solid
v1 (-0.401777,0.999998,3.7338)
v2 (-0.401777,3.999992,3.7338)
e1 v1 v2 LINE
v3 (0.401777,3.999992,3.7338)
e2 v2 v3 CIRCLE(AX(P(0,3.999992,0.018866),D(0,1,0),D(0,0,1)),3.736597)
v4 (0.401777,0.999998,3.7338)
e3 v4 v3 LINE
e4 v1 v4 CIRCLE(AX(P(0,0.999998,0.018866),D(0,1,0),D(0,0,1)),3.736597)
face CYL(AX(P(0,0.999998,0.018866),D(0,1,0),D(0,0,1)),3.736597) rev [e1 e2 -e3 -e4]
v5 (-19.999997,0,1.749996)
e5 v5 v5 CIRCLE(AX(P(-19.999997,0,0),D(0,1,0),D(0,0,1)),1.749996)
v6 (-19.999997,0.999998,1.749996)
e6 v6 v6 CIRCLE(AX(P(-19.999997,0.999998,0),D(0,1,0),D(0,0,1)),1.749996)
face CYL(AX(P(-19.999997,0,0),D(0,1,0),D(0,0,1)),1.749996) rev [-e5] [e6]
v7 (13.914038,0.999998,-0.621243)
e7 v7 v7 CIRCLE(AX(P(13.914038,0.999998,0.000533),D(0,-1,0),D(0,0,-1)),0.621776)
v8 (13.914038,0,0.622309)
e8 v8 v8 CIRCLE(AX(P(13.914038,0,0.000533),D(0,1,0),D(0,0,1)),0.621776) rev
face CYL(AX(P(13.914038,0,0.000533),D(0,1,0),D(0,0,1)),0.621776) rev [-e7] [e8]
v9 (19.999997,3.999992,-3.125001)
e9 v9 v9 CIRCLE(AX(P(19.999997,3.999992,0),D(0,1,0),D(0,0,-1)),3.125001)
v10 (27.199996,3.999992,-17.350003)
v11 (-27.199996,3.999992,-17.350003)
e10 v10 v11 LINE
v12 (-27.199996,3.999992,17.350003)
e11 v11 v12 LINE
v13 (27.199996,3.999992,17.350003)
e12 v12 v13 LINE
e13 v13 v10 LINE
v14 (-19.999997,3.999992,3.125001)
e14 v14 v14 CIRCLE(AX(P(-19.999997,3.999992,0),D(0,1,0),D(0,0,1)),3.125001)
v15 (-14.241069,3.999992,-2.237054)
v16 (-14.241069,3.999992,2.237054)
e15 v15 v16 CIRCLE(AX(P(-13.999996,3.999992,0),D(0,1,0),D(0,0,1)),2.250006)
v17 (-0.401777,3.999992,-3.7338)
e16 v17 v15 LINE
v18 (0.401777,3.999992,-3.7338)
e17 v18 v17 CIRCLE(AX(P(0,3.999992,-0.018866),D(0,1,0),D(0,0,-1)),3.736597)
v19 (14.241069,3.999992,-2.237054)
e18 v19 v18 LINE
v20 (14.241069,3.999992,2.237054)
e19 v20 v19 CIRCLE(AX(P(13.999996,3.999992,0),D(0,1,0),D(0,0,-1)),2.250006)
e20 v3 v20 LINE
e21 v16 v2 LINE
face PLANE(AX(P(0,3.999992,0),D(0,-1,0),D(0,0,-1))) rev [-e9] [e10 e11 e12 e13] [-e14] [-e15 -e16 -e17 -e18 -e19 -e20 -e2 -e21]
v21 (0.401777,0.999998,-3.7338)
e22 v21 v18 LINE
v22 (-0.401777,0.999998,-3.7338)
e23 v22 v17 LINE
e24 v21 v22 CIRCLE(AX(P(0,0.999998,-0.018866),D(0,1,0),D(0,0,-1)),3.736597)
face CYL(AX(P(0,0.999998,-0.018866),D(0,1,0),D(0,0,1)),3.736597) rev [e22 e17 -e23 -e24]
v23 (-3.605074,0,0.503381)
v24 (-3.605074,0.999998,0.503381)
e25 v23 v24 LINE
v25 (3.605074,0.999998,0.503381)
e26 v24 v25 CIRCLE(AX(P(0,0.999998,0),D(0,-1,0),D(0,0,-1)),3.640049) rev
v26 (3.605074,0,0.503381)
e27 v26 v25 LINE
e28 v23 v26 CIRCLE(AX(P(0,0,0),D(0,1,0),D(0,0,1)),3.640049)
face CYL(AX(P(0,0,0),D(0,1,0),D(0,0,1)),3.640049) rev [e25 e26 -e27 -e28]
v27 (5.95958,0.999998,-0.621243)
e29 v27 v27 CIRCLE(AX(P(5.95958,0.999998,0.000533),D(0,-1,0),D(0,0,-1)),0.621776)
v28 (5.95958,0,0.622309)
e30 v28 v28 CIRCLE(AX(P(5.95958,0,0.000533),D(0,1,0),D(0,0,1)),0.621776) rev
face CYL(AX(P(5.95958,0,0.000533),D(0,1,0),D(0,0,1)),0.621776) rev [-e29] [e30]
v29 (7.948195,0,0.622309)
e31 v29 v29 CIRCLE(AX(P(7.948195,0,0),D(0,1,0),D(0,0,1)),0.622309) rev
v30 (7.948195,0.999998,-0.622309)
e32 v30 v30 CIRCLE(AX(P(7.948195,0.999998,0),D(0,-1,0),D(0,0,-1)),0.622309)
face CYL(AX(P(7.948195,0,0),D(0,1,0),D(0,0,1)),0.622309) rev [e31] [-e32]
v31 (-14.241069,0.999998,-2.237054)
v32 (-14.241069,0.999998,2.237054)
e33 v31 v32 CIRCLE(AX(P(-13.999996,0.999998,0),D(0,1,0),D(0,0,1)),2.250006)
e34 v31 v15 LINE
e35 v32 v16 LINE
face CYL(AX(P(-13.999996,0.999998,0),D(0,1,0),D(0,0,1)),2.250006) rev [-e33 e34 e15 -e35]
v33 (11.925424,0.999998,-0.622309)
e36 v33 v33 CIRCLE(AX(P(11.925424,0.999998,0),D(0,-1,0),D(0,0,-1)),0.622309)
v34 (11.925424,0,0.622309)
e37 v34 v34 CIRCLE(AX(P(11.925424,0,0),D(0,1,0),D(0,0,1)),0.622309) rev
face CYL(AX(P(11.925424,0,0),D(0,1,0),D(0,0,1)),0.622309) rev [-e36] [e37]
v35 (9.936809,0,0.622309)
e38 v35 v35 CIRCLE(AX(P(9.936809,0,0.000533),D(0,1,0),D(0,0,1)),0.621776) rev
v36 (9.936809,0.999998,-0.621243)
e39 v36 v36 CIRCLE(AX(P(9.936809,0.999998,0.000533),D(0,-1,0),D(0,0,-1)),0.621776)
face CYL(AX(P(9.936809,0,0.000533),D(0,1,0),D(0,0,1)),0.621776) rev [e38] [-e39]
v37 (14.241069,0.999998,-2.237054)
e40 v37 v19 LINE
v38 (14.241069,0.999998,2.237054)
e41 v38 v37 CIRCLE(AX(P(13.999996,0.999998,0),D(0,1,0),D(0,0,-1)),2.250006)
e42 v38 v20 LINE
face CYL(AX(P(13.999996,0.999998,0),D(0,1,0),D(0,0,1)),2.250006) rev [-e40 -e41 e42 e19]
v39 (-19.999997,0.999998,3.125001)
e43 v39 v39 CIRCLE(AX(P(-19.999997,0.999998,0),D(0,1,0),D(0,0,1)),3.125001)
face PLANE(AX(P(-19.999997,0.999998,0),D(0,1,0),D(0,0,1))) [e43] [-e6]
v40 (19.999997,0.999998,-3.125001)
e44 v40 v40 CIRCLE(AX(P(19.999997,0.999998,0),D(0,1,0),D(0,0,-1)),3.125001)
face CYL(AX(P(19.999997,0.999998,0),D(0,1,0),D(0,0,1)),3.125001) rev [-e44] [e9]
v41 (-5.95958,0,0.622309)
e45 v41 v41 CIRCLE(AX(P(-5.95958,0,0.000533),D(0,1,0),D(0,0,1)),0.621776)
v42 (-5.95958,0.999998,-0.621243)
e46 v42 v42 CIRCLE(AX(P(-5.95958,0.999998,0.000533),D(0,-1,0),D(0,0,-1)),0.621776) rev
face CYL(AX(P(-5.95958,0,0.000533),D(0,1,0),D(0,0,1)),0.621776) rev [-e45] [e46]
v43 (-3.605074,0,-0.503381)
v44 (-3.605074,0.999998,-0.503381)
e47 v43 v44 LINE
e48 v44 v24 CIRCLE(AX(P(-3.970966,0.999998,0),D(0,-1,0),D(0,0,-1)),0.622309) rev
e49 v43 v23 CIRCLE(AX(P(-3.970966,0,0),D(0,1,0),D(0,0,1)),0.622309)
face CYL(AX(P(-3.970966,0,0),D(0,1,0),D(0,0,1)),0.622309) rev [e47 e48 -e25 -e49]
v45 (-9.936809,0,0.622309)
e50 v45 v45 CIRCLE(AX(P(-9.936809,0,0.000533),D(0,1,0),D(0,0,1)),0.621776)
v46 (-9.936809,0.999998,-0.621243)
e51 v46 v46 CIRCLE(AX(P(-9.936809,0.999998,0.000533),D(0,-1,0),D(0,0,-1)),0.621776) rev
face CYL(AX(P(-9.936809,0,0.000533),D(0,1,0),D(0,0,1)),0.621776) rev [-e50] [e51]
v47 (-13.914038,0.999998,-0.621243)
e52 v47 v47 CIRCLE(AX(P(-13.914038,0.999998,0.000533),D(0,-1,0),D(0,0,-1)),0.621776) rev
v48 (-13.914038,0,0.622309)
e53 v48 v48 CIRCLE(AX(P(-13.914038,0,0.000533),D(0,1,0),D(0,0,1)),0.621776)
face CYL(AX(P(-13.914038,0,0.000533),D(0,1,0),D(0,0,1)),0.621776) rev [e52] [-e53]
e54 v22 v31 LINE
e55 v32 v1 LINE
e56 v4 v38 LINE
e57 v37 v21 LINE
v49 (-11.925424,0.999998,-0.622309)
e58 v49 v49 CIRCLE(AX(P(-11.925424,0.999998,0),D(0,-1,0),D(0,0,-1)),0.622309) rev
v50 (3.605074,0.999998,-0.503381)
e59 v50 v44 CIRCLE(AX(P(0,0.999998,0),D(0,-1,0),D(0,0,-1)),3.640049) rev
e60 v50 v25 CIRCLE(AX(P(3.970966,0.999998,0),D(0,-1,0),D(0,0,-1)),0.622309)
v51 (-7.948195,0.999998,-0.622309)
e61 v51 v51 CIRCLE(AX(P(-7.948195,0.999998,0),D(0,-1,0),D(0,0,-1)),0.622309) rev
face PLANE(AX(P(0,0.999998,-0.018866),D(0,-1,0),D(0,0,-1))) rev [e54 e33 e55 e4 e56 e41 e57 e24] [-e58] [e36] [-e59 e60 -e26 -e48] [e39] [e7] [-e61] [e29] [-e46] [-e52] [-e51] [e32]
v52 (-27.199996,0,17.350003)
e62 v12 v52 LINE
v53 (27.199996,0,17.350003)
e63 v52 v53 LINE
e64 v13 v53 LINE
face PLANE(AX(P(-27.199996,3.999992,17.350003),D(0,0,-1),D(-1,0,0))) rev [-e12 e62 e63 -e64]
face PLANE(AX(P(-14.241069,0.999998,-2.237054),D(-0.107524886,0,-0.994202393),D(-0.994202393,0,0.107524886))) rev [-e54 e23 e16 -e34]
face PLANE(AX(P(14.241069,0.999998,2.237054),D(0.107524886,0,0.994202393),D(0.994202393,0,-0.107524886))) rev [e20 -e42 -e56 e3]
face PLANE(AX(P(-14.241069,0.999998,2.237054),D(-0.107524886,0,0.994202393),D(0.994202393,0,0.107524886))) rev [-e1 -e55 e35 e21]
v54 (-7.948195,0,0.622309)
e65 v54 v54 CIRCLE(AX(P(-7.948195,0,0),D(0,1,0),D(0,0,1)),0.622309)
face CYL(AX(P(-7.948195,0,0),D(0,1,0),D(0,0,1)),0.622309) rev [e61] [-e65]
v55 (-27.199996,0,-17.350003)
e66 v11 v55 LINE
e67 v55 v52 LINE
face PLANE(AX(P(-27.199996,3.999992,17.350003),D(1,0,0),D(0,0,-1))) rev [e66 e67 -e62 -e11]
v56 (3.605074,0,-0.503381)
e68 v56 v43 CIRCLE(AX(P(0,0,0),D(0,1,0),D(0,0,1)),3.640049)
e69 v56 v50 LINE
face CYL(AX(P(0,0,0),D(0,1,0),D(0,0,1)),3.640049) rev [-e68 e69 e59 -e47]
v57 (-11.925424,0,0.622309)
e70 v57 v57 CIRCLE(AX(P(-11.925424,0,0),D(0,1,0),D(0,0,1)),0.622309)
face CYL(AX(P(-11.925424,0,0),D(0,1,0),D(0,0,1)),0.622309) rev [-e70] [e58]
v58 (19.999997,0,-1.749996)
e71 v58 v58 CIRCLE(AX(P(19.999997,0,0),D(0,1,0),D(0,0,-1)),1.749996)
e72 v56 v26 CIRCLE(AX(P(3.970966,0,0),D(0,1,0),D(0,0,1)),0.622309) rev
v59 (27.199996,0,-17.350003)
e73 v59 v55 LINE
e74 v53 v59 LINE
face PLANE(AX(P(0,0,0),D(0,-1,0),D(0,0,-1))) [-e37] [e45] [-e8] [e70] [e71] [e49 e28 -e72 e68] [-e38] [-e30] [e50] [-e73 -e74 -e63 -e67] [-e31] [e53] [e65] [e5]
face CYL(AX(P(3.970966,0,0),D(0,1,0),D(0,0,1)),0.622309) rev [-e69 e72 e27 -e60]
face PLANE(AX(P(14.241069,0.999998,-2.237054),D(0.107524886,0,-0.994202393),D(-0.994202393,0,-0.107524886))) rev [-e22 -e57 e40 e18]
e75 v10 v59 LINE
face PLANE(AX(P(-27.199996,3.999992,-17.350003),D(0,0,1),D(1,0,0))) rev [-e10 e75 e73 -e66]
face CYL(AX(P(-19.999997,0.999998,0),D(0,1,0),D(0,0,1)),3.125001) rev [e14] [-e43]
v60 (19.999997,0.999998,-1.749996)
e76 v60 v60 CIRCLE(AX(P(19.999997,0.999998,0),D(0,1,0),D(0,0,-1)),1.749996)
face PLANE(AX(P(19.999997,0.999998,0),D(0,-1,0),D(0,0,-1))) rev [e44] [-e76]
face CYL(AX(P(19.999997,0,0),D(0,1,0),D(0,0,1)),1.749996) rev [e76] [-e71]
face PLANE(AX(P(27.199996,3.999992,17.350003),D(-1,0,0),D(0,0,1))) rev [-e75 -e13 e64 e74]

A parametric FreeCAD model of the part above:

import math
import FreeCAD as App
import Part
import Sketcher
from FreeCAD import Vector


def add_polygon(sketch, points):
    """Adds a closed chain of lines whose ends are joined by coincident constraints."""
    first, n = sketch.GeometryCount, len(points)
    for a, b in zip(points, points[1:] + points[:1]):
        sketch.addGeometry(Part.LineSegment(App.Vector(*a, 0), App.Vector(*b, 0)), False)
    for i in range(n):
        sketch.addConstraint(Sketcher.Constraint("Coincident", first + i, 2, first + (i + 1) % n, 1))

doc = App.newDocument("Part")
body = doc.addObject("PartDesign::Body", "Body")

# Sketch on XZ plane
sketch1 = doc.addObject("Sketcher::SketchObject", "Sketch")
body.addObject(sketch1)
sketch1.AttachmentSupport = (doc.XZ_Plane, [""])
sketch1.MapMode = "FlatFace"
add_polygon(sketch1, [(-27.199996, -17.350003), (-27.199996, 17.350003), (27.199996, 17.350003), (27.199996, -17.350003)])  # lines 0-3
sketch1.addConstraint(Sketcher.Constraint("Vertical", 0))
sketch1.addConstraint(Sketcher.Constraint("Horizontal", 1))
sketch1.addConstraint(Sketcher.Constraint("Vertical", 2))
sketch1.addConstraint(Sketcher.Constraint("Horizontal", 3))
sketch1.addConstraint(Sketcher.Constraint("Symmetric", 0, 2, 2, 2, -1, 1))
sketch1.addConstraint(Sketcher.Constraint("DistanceX", 1, 1, 1, 2, 54.399993))
sketch1.addConstraint(Sketcher.Constraint("DistanceY", 0, 1, 0, 2, 34.700007))
pad1 = doc.addObject("PartDesign::Pad", "Pad")
body.addObject(pad1)
pad1.Profile = sketch1
pad1.Length = 3.999992
pad1.Reversed = True

# Sketch on XZ plane
sketch2 = doc.addObject("Sketcher::SketchObject", "Sketch001")
body.addObject(sketch2)
sketch2.AttachmentSupport = (doc.XZ_Plane, [""])
sketch2.MapMode = "FlatFace"
sketch2.AttachmentOffset = App.Placement(Vector(0, 0, -3.999992), App.Rotation())
sketch2.addGeometry(Part.Circle(Vector(-19.999997, 0, 0), Vector(0, 0, 1), 3.125001), False)
sketch2.addGeometry(Part.Circle(Vector(19.999997, 0, 0), Vector(0, 0, 1), 3.125001), False)
sketch2.addConstraint(Sketcher.Constraint("Equal", 0, 1))
sketch2.addConstraint(Sketcher.Constraint("Symmetric", 0, 3, 1, 3, -1, 1))
sketch2.addConstraint(Sketcher.Constraint("PointOnObject", 0, 3, -1))
sketch2.addConstraint(Sketcher.Constraint("Diameter", 0, 6.250002))
sketch2.addConstraint(Sketcher.Constraint("DistanceX", 0, 3, -1, 1, 19.999997))
pocket1 = doc.addObject("PartDesign::Pocket", "Pocket")
body.addObject(pocket1)
pocket1.Profile = sketch2
pocket1.Length = 2.999994
pocket1.Reversed = True

# Sketch on XZ plane
sketch3 = doc.addObject("Sketcher::SketchObject", "Sketch002")
body.addObject(sketch3)
sketch3.AttachmentSupport = (doc.XZ_Plane, [""])
sketch3.MapMode = "FlatFace"
sketch3.AttachmentOffset = App.Placement(Vector(0, 0, -0.999998), App.Rotation())
sketch3.addGeometry(Part.Circle(Vector(-19.999997, 0, 0), Vector(0, 0, 1), 1.749996), False)
sketch3.addGeometry(Part.Circle(Vector(19.999997, 0, 0), Vector(0, 0, 1), 1.749996), False)
sketch3.addConstraint(Sketcher.Constraint("Equal", 0, 1))
sketch3.addConstraint(Sketcher.Constraint("Symmetric", 0, 3, 1, 3, -1, 1))
sketch3.addConstraint(Sketcher.Constraint("PointOnObject", 0, 3, -1))
sketch3.addConstraint(Sketcher.Constraint("Diameter", 0, 3.499993))
sketch3.addConstraint(Sketcher.Constraint("DistanceX", 0, 3, -1, 1, 19.999997))
pocket2 = doc.addObject("PartDesign::Pocket", "Pocket001")
body.addObject(pocket2)
pocket2.Profile = sketch3
pocket2.Type = "ThroughAll"
pocket2.Reversed = True

# Sketch on XZ plane
sketch4 = doc.addObject("Sketcher::SketchObject", "Sketch003")
body.addObject(sketch4)
sketch4.AttachmentSupport = (doc.XZ_Plane, [""])
sketch4.MapMode = "FlatFace"
sketch4.AttachmentOffset = App.Placement(Vector(0, 0, -3.999992), App.Rotation())
sketch4.addGeometry(Part.Circle(Vector(-13.914038, 0.000533, 0), Vector(0, 0, 1), 0.621776), False)
sketch4.addGeometry(Part.Circle(Vector(-11.925424, 0, 0), Vector(0, 0, 1), 0.622309), False)
sketch4.addGeometry(Part.Circle(Vector(-9.936809, 0.000533, 0), Vector(0, 0, 1), 0.621776), False)
sketch4.addGeometry(Part.Circle(Vector(-7.948195, 0, 0), Vector(0, 0, 1), 0.622309), False)
sketch4.addGeometry(Part.Circle(Vector(-5.95958, 0.000533, 0), Vector(0, 0, 1), 0.621776), False)
sketch4.addGeometry(Part.ArcOfCircle(Part.Circle(Vector(3.970966, 0, 0), Vector(0, 0, 1), 0.622309), math.radians(-126.012198), math.radians(126.012198)), False)
sketch4.addGeometry(Part.ArcOfCircle(Part.Circle(Vector(0, 0, 0), Vector(0, 0, 1), 3.640049), math.radians(-172.051117), math.radians(-7.948883)), False)
sketch4.addGeometry(Part.ArcOfCircle(Part.Circle(Vector(-3.970966, 0, 0), Vector(0, 0, 1), 0.622309), math.radians(53.987802), math.radians(306.012198)), False)
sketch4.addGeometry(Part.ArcOfCircle(Part.Circle(Vector(0, 0, 0), Vector(0, 0, 1), 3.640049), math.radians(7.948883), math.radians(172.051117)), False)
sketch4.addGeometry(Part.Circle(Vector(5.95958, 0.000533, 0), Vector(0, 0, 1), 0.621776), False)
sketch4.addGeometry(Part.Circle(Vector(9.936809, 0.000533, 0), Vector(0, 0, 1), 0.621776), False)
sketch4.addGeometry(Part.Circle(Vector(7.948195, 0, 0), Vector(0, 0, 1), 0.622309), False)
sketch4.addGeometry(Part.Circle(Vector(11.925424, 0, 0), Vector(0, 0, 1), 0.622309), False)
sketch4.addGeometry(Part.Circle(Vector(13.914038, 0.000533, 0), Vector(0, 0, 1), 0.621776), False)
sketch4.addConstraint(Sketcher.Constraint("Coincident", 5, 1, 6, 2))
sketch4.addConstraint(Sketcher.Constraint("Coincident", 6, 1, 7, 2))
sketch4.addConstraint(Sketcher.Constraint("Coincident", 7, 1, 8, 2))
sketch4.addConstraint(Sketcher.Constraint("Coincident", 8, 1, 5, 2))
sketch4.addConstraint(Sketcher.Constraint("Coincident", 6, 3, -1, 1))
sketch4.addConstraint(Sketcher.Constraint("Coincident", 8, 3, -1, 1))
sketch4.addConstraint(Sketcher.Constraint("Equal", 0, 2))
sketch4.addConstraint(Sketcher.Constraint("Equal", 1, 3))
sketch4.addConstraint(Sketcher.Constraint("Equal", 2, 4))
sketch4.addConstraint(Sketcher.Constraint("Equal", 3, 5))
sketch4.addConstraint(Sketcher.Constraint("Equal", 5, 7))
sketch4.addConstraint(Sketcher.Constraint("Equal", 6, 8))
sketch4.addConstraint(Sketcher.Constraint("Equal", 4, 9))
sketch4.addConstraint(Sketcher.Constraint("Equal", 9, 10))
sketch4.addConstraint(Sketcher.Constraint("Equal", 7, 11))
sketch4.addConstraint(Sketcher.Constraint("Equal", 11, 12))
sketch4.addConstraint(Sketcher.Constraint("Equal", 10, 13))
sketch4.addConstraint(Sketcher.Constraint("Symmetric", 5, 3, 7, 3, -1, 1))
sketch4.addConstraint(Sketcher.Constraint("Symmetric", 3, 3, 11, 3, -1, 1))
sketch4.addConstraint(Sketcher.Constraint("Symmetric", 1, 3, 12, 3, -1, 1))
sketch4.addConstraint(Sketcher.Constraint("Symmetric", 4, 3, 9, 3, -2))
sketch4.addConstraint(Sketcher.Constraint("Symmetric", 2, 3, 10, 3, -2))
sketch4.addConstraint(Sketcher.Constraint("Symmetric", 0, 3, 13, 3, -2))
sketch4.addConstraint(Sketcher.Constraint("PointOnObject", 1, 3, -1))
sketch4.addConstraint(Sketcher.Constraint("PointOnObject", 3, 3, -1))
sketch4.addConstraint(Sketcher.Constraint("PointOnObject", 5, 3, -1))
sketch4.addConstraint(Sketcher.Constraint("Horizontal", 0, 3, 2, 3))
sketch4.addConstraint(Sketcher.Constraint("Horizontal", 2, 3, 4, 3))
sketch4.addConstraint(Sketcher.Constraint("Diameter", 1, 1.244618))
sketch4.addConstraint(Sketcher.Constraint("Radius", 6, 3.640049))
sketch4.addConstraint(Sketcher.Constraint("Diameter", 0, 1.243553))
sketch4.addConstraint(Sketcher.Constraint("DistanceX", 0, 3, -1, 1, 13.914038))
sketch4.addConstraint(Sketcher.Constraint("DistanceX", 2, 3, -1, 1, 9.936809))
sketch4.addConstraint(Sketcher.Constraint("DistanceX", 4, 3, -1, 1, 5.95958))
sketch4.addConstraint(Sketcher.Constraint("DistanceY", 5, 1, -1, 1, 0.503381))
sketch4.addConstraint(Sketcher.Constraint("DistanceX", 1, 3, 3, 3, 3.977229))
sketch4.addConstraint(Sketcher.Constraint("DistanceX", 3, 3, 5, 3, 11.91916))
sketch4.addConstraint(Sketcher.Constraint("DistanceY", -1, 1, 0, 3, 0.000533))
pocket3 = doc.addObject("PartDesign::Pocket", "Pocket002")
body.addObject(pocket3)
pocket3.Profile = sketch4
pocket3.Type = "ThroughAll"
pocket3.Reversed = True

# Sketch on XZ plane
sketch5 = doc.addObject("Sketcher::SketchObject", "Sketch004")
body.addObject(sketch5)
sketch5.AttachmentSupport = (doc.XZ_Plane, [""])
sketch5.MapMode = "FlatFace"
sketch5.AttachmentOffset = App.Placement(Vector(0, 0, -3.999992), App.Rotation())
sketch5.addGeometry(Part.LineSegment(Vector(-0.401777, -3.7338, 0), Vector(-14.241069, -2.237054, 0)), False)
sketch5.addGeometry(Part.ArcOfCircle(Part.Circle(Vector(-13.999996, 0, 0), Vector(0, 0, 1), 2.250006), math.radians(96.150658), math.radians(263.849342)), False)
sketch5.addGeometry(Part.LineSegment(Vector(-14.241069, 2.237054, 0), Vector(-0.401777, 3.7338, 0)), False)
sketch5.addGeometry(Part.ArcOfCircle(Part.Circle(Vector(0, 0.018866, 0), Vector(0, 0, 1), 3.736597), math.radians(83.827344), math.radians(96.172656)), False)
sketch5.addGeometry(Part.LineSegment(Vector(0.401777, 3.7338, 0), Vector(14.241069, 2.237054, 0)), False)
sketch5.addGeometry(Part.ArcOfCircle(Part.Circle(Vector(13.999996, 0, 0), Vector(0, 0, 1), 2.250006), math.radians(-83.849342), math.radians(83.849342)), False)
sketch5.addGeometry(Part.LineSegment(Vector(14.241069, -2.237054, 0), Vector(0.401777, -3.7338, 0)), False)
sketch5.addGeometry(Part.ArcOfCircle(Part.Circle(Vector(0, -0.018866, 0), Vector(0, 0, 1), 3.736597), math.radians(-96.172656), math.radians(-83.827344)), False)
sketch5.addConstraint(Sketcher.Constraint("Coincident", 0, 2, 1, 2))
sketch5.addConstraint(Sketcher.Constraint("Coincident", 1, 1, 2, 1))
sketch5.addConstraint(Sketcher.Constraint("Tangent", 2, 2, 3, 2))
sketch5.addConstraint(Sketcher.Constraint("Tangent", 3, 1, 4, 1))
sketch5.addConstraint(Sketcher.Constraint("Coincident", 4, 2, 5, 2))
sketch5.addConstraint(Sketcher.Constraint("Coincident", 5, 1, 6, 1))
sketch5.addConstraint(Sketcher.Constraint("Tangent", 6, 2, 7, 2))
sketch5.addConstraint(Sketcher.Constraint("Tangent", 7, 1, 0, 1))
sketch5.addConstraint(Sketcher.Constraint("Equal", 1, 5))
sketch5.addConstraint(Sketcher.Constraint("Equal", 3, 7))
sketch5.addConstraint(Sketcher.Constraint("Symmetric", 1, 3, 5, 3, -1, 1))
sketch5.addConstraint(Sketcher.Constraint("Symmetric", 3, 3, 7, 3, -1, 1))
sketch5.addConstraint(Sketcher.Constraint("Symmetric", 2, 2, 3, 1, -2))
sketch5.addConstraint(Sketcher.Constraint("Horizontal", 1, 1, 4, 2))
sketch5.addConstraint(Sketcher.Constraint("Horizontal", 0, 2, 5, 1))
sketch5.addConstraint(Sketcher.Constraint("Vertical", 0, 2, 1, 1))
sketch5.addConstraint(Sketcher.Constraint("Radius", 1, 2.250006))
sketch5.addConstraint(Sketcher.Constraint("Radius", 3, 3.736597))
sketch5.addConstraint(Sketcher.Constraint("DistanceY", -1, 1, 2, 2, 3.7338))
sketch5.addConstraint(Sketcher.Constraint("DistanceX", 0, 2, -1, 1, 14.241069))
sketch5.addConstraint(Sketcher.Constraint("DistanceY", 0, 2, 7, 3, 2.218188))
pocket4 = doc.addObject("PartDesign::Pocket", "Pocket003")
body.addObject(pocket4)
pocket4.Profile = sketch5
pocket4.Length = 2.999994
pocket4.Reversed = True

doc.recompute()
